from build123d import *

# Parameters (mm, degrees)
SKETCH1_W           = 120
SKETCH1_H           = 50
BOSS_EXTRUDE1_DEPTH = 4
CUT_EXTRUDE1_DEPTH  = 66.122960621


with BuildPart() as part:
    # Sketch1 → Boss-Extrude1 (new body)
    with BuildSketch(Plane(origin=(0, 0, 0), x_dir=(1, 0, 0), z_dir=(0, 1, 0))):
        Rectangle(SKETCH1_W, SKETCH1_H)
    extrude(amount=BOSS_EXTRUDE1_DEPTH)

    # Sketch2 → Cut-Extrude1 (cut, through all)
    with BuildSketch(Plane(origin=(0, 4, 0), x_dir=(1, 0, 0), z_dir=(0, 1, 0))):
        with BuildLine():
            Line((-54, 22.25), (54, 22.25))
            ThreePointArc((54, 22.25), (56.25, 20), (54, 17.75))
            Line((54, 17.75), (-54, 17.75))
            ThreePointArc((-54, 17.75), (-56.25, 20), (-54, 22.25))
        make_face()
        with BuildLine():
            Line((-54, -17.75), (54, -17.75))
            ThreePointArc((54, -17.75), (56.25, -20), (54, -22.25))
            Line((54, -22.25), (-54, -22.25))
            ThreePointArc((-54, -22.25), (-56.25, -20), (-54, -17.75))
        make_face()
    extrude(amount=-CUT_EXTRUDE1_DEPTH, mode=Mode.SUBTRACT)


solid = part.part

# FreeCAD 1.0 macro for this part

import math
import FreeCAD as App
import Part
import Sketcher

V = App.Vector
Q = App.Units.Quantity

doc = App.newDocument("Part")
body = doc.addObject("PartDesign::Body", "Body")

sketch1 = body.newObject("Sketcher::SketchObject", "Sketch")
sketch1.AttachmentSupport = (doc.getObject("XZ_Plane"), [""])
sketch1.MapMode = "FlatFace"
sketch1.addGeometry([
    Part.LineSegment(V(-60, -25, 0), V(-60, 25, 0)),
    Part.LineSegment(V(-60, 25, 0), V(60, 25, 0)),
    Part.LineSegment(V(60, 25, 0), V(60, -25, 0)),
    Part.LineSegment(V(60, -25, 0), V(-60, -25, 0)),
], False)
sketch1.addConstraint([
    Sketcher.Constraint("Coincident", 0, 2, 1, 1),
    Sketcher.Constraint("Coincident", 1, 2, 2, 1),
    Sketcher.Constraint("Coincident", 2, 2, 3, 1),
    Sketcher.Constraint("Coincident", 3, 2, 0, 1),
    Sketcher.Constraint("Vertical", 0),
    Sketcher.Constraint("Horizontal", 1),
    Sketcher.Constraint("Vertical", 2),
    Sketcher.Constraint("Horizontal", 3),
    Sketcher.Constraint("Symmetric", 0, 2, 2, 2, -1, 1),
    Sketcher.Constraint("DistanceX", 1, 1, 1, 2, Q("120 mm")),
    Sketcher.Constraint("DistanceY", 0, 1, 0, 2, Q("50 mm")),
])
pad1 = body.newObject("PartDesign::Pad", "Pad")
pad1.Profile = sketch1
pad1.Length = 4
pad1.Reversed = True

sketch2 = body.newObject("Sketcher::SketchObject", "Sketch001")
sketch2.AttachmentSupport = (doc.getObject("XZ_Plane"), [""])
sketch2.MapMode = "FlatFace"
sketch2.AttachmentOffset = App.Placement(V(0, 0, -4), App.Rotation())
sketch2.addGeometry([
    Part.LineSegment(V(54, -22.25, 0), V(-54, -22.25, 0)),
    Part.ArcOfCircle(Part.Circle(V(-54, -20, 0), V(0, 0, 1), 2.25), math.radians(90), math.radians(270)),
    Part.LineSegment(V(-54, -17.75, 0), V(54, -17.75, 0)),
    Part.ArcOfCircle(Part.Circle(V(54, -20, 0), V(0, 0, 1), 2.25), math.radians(-90), math.radians(90)),
    Part.LineSegment(V(54, 17.75, 0), V(-54, 17.75, 0)),
    Part.ArcOfCircle(Part.Circle(V(-54, 20, 0), V(0, 0, 1), 2.25), math.radians(90), math.radians(270)),
    Part.LineSegment(V(-54, 22.25, 0), V(54, 22.25, 0)),
    Part.ArcOfCircle(Part.Circle(V(54, 20, 0), V(0, 0, 1), 2.25), math.radians(-90), math.radians(90)),
], False)
sketch2.addConstraint([
    Sketcher.Constraint("Tangent", 0, 2, 1, 2),
    Sketcher.Constraint("Tangent", 1, 1, 2, 1),
    Sketcher.Constraint("Tangent", 2, 2, 3, 2),
    Sketcher.Constraint("Tangent", 3, 1, 0, 1),
    Sketcher.Constraint("Tangent", 4, 2, 5, 2),
    Sketcher.Constraint("Tangent", 5, 1, 6, 1),
    Sketcher.Constraint("Tangent", 6, 2, 7, 2),
    Sketcher.Constraint("Tangent", 7, 1, 4, 1),
    Sketcher.Constraint("Horizontal", 0),
    Sketcher.Constraint("Horizontal", 2),
    Sketcher.Constraint("Horizontal", 4),
    Sketcher.Constraint("Horizontal", 6),
    Sketcher.Constraint("Equal", 3, 5),
    Sketcher.Constraint("Symmetric", 3, 3, 5, 3, -1, 1),
    Sketcher.Constraint("Vertical", 1, 3, 5, 3),
    Sketcher.Constraint("Vertical", 3, 3, 7, 3),
    Sketcher.Constraint("DistanceX", 0, 2, 0, 1, Q("108 mm")),
    Sketcher.Constraint("Radius", 1, Q("2.25 mm")),
    Sketcher.Constraint("DistanceY", 1, 3, -1, 1, Q("20 mm")),
])
pocket1 = body.newObject("PartDesign::Pocket", "Pocket")
pocket1.Profile = sketch2
pocket1.Type = "ThroughAll"
pocket1.Reversed = True

doc.recompute()
